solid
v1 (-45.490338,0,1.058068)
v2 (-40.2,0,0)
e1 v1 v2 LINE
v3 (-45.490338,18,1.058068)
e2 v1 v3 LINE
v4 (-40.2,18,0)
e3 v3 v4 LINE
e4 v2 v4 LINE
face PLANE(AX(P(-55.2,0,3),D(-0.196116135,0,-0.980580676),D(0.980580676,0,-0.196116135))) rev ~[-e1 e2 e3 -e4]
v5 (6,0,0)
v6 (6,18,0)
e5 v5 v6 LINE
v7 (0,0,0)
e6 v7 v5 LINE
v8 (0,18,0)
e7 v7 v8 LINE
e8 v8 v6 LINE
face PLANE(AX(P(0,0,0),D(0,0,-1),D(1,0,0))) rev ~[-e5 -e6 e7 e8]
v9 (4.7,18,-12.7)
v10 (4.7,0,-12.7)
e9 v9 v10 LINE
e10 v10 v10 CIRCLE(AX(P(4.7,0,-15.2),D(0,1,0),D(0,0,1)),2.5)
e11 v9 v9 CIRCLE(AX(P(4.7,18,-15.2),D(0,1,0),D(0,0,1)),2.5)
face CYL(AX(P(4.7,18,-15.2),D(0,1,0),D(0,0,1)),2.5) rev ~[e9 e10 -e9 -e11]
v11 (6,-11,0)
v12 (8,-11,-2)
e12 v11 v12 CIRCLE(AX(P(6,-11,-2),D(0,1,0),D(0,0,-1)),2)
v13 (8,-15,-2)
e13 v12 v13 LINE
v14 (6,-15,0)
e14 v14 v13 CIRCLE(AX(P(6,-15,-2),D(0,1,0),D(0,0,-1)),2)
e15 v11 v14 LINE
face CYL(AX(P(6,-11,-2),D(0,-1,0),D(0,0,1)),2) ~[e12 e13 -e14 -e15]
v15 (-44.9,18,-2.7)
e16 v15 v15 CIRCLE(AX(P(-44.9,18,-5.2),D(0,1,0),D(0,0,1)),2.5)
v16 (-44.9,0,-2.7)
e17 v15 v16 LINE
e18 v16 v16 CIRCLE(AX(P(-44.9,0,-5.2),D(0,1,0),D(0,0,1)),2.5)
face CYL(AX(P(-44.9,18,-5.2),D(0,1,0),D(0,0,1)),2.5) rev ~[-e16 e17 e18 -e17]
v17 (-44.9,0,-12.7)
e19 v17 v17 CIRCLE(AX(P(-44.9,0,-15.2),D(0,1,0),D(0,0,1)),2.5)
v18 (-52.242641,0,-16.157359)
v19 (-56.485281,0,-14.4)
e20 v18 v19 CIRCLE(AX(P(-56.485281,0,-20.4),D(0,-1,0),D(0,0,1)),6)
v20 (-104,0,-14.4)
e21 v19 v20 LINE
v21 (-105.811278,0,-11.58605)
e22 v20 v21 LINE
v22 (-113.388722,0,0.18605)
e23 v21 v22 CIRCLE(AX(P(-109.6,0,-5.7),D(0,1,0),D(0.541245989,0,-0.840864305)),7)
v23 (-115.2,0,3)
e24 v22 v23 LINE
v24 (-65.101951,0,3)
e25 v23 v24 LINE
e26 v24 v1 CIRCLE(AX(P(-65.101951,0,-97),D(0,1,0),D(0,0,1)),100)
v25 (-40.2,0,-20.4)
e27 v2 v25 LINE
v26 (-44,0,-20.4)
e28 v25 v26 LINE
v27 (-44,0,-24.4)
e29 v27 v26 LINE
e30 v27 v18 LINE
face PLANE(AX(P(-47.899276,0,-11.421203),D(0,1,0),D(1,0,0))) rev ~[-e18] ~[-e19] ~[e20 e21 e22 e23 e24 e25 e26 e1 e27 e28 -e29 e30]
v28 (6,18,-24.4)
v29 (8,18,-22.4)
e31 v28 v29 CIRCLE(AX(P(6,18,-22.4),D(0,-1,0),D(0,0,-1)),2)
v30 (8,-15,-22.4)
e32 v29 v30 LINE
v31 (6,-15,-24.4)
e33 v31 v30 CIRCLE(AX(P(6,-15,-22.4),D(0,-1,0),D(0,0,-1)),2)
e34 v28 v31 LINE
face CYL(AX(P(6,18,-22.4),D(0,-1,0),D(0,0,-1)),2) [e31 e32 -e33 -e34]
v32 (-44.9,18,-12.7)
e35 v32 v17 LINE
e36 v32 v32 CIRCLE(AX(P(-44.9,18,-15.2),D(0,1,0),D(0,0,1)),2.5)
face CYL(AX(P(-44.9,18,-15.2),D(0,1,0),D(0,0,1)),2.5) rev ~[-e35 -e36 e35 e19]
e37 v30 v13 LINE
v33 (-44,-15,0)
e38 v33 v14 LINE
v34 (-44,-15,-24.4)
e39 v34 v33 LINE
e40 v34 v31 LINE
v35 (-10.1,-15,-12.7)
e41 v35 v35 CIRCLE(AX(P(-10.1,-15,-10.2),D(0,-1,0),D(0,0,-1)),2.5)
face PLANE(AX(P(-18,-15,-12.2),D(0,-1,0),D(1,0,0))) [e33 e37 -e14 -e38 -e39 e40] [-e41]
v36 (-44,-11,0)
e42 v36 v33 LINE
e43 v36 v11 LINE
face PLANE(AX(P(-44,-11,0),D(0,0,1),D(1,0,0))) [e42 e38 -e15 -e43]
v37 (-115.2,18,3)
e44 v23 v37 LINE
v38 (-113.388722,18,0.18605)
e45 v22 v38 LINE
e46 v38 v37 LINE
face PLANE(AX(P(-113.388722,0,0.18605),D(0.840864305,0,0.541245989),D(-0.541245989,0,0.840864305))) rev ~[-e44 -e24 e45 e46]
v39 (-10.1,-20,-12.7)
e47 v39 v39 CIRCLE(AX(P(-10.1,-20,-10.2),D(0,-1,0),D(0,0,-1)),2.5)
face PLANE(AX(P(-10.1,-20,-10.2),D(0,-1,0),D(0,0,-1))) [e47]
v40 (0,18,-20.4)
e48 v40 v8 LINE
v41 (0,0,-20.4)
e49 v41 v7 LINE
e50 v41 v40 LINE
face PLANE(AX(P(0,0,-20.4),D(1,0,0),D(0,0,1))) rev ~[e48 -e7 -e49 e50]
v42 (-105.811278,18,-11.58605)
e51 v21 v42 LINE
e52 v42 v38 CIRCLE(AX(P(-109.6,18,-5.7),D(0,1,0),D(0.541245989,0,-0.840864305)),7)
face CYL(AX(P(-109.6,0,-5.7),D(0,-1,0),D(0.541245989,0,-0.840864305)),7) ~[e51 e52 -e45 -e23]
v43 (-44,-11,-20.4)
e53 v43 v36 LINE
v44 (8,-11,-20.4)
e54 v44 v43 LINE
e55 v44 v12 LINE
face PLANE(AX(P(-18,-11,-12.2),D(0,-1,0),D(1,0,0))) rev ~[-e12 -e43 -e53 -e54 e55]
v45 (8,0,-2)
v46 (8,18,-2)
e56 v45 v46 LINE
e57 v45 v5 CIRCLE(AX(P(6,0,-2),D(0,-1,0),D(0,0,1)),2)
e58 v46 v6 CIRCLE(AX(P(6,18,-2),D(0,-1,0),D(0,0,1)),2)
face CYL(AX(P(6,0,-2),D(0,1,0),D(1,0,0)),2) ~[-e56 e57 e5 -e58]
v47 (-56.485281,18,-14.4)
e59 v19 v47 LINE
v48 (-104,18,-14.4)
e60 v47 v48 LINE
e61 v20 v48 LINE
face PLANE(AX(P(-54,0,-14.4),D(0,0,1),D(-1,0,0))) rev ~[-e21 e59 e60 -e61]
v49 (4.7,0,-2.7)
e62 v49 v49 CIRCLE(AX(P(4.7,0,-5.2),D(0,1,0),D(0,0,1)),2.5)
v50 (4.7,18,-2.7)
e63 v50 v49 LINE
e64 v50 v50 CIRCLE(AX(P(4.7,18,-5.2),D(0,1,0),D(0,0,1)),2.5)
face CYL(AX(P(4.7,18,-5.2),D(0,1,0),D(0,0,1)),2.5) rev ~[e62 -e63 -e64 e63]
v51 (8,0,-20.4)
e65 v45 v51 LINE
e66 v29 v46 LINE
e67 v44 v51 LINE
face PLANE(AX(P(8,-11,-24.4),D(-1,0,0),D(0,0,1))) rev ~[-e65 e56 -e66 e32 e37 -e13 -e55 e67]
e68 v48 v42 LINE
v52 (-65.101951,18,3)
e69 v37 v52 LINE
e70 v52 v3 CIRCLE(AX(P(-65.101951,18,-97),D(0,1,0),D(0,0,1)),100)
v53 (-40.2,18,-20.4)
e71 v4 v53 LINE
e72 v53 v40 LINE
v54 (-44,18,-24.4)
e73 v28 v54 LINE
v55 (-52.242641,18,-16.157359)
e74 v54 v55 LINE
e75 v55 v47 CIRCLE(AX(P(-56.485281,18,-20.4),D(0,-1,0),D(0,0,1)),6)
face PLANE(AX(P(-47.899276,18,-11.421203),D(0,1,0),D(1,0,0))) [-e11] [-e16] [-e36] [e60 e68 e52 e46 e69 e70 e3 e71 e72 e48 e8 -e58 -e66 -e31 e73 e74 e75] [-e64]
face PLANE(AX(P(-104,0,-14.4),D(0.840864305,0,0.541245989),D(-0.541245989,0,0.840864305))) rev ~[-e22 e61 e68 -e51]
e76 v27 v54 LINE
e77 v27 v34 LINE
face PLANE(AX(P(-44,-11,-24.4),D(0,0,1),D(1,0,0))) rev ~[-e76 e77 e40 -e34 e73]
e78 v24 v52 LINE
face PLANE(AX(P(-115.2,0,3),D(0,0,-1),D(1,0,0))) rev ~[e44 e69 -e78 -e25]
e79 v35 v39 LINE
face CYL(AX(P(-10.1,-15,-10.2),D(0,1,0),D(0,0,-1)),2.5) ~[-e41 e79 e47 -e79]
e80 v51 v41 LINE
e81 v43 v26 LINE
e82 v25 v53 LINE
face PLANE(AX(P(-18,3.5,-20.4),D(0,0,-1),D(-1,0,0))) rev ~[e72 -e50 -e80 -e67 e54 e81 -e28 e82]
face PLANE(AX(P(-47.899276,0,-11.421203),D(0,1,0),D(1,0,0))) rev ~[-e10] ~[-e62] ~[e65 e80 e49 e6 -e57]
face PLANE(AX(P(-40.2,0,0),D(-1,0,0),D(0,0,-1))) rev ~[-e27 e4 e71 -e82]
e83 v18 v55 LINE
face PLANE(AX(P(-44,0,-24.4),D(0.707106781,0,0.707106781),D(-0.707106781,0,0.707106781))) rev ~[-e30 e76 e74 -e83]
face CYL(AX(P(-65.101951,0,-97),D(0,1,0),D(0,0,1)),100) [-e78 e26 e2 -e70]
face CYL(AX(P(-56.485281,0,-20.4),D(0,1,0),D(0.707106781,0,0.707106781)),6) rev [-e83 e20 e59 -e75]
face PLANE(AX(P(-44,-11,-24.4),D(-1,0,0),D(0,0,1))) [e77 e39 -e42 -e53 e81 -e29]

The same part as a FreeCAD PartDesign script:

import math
import FreeCAD as App
import Part
import Sketcher
from FreeCAD import Vector
Q = App.Units.Quantity


def edges_at(feature, points):
    """Names of the edges that pass closest to the given points."""
    edges = feature.Shape.Edges
    near = lambda p: min(range(len(edges)), key=lambda i: edges[i].distToShape(Part.Vertex(*p))[0])
    return sorted({f"Edge{near(p) + 1}" for p in points})

doc = App.newDocument("Part")
params = doc.addObject("Spreadsheet::Sheet", "Params")
for row, (alias, value) in enumerate([
    ("sketch1_radius", "7 mm"),
    ("sketch1_width", "8 mm"),
    ("sketch1_width2", "52 mm"),
    ("sketch1_width3", "50 mm"),
    ("sketch1_width4", "60 mm"),
    ("pad1_length", "18 mm"),
    ("sketch2_width", "52 mm"),
    ("sketch2_height", "29 mm"),
    ("pad2_length", "4 mm"),
    ("sketch3_width", "52 mm"),
    ("sketch3_height", "24.4 mm"),
    ("pad3_length", "4 mm"),
    ("sketch4_diameter", "5 mm"),
    ("pad4_length", "5 mm"),
    ("sketch5_diameter", "5 mm"),
    ("pocket1_length", "18 mm"),
    ("fillet_radius", "6 mm"),
    ("fillet2_radius", "2 mm"),
    ("fillet3_radius", "100 mm"),
], start=1):
    params.set(f"A{row}", alias)
    params.set(f"B{row}", "=" + value)
    params.setAlias(f"B{row}", alias)

body = doc.addObject("PartDesign::Body", "Body")

# Sketch on XZ plane
sketch1 = body.newObject("Sketcher::SketchObject", "Sketch")
sketch1.AttachmentSupport = (doc.getObject("XZ_Plane"), [""])
sketch1.MapMode = "FlatFace"
sketch1.addGeometry([
    Part.LineSegment(Vector(-40.2, 0, 0), Vector(-40.2, -20.4, 0)),  # 0
    Part.LineSegment(Vector(-40.2, -20.4, 0), Vector(0, -20.4, 0)),  # 1
    Part.LineSegment(Vector(0, -20.4, 0), Vector(0, 0, 0)),  # 2
    Part.LineSegment(Vector(0, 0, 0), Vector(8, 0, 0)),  # 3
    Part.LineSegment(Vector(8, 0, 0), Vector(8, -24.4, 0)),  # 4
    Part.LineSegment(Vector(8, -24.4, 0), Vector(-44, -24.4, 0)),  # 5
    Part.LineSegment(Vector(-44, -24.4, 0), Vector(-54, -14.4, 0)),  # 6
    Part.LineSegment(Vector(-54, -14.4, 0), Vector(-104, -14.4, 0)),  # 7
    Part.LineSegment(Vector(-104, -14.4, 0), Vector(-105.8, -11.6, 0)),  # 8
    Part.ArcOfCircle(Part.Circle(Vector(-109.6, -5.7, 0), Vector(0, 0, 1), 7), math.radians(123), math.radians(303)),  # 9
    Part.LineSegment(Vector(-113.4, 0.2, 0), Vector(-115.2, 3, 0)),  # 10
    Part.LineSegment(Vector(-115.2, 3, 0), Vector(-55.2, 3, 0)),  # 11
    Part.LineSegment(Vector(-55.2, 3, 0), Vector(-40.2, 0, 0)),  # 12
], False)
sketch1.addConstraint([
    Sketcher.Constraint("Coincident", 0, 2, 1, 1),
    Sketcher.Constraint("Coincident", 1, 2, 2, 1),
    Sketcher.Constraint("Coincident", 2, 2, 3, 1),
    Sketcher.Constraint("Coincident", 3, 2, 4, 1),
    Sketcher.Constraint("Coincident", 4, 2, 5, 1),
    Sketcher.Constraint("Coincident", 5, 2, 6, 1),
    Sketcher.Constraint("Coincident", 6, 2, 7, 1),
    Sketcher.Constraint("Coincident", 7, 2, 8, 1),
    Sketcher.Constraint("Coincident", 8, 2, 9, 2),
    Sketcher.Constraint("Coincident", 9, 1, 10, 1),
    Sketcher.Constraint("Coincident", 10, 2, 11, 1),
    Sketcher.Constraint("Coincident", 11, 2, 12, 1),
    Sketcher.Constraint("Coincident", 12, 2, 0, 1),
    Sketcher.Constraint("Vertical", 0),
    Sketcher.Constraint("Horizontal", 1),
    Sketcher.Constraint("Vertical", 2),
    Sketcher.Constraint("Horizontal", 3),
    Sketcher.Constraint("Vertical", 4),
    Sketcher.Constraint("Horizontal", 5),
    Sketcher.Constraint("Horizontal", 7),
    Sketcher.Constraint("Horizontal", 11),
    Sketcher.Constraint("Coincident", 2, 2, -1, 1),
    Sketcher.Constraint("PointOnObject", 12, 2, -1),
    Sketcher.Constraint("Parallel", 8, 10),
    Sketcher.Constraint("Equal", 8, 10),
    Sketcher.Constraint("Radius", 9, Q("7 mm")),
    Sketcher.Constraint("DistanceX", 3, 1, 3, 2, Q("8 mm")),
    Sketcher.Constraint("DistanceX", 5, 2, 5, 1, Q("52 mm")),
    Sketcher.Constraint("DistanceX", 7, 2, 7, 1, Q("50 mm")),
    Sketcher.Constraint("DistanceX", 11, 1, 11, 2, Q("60 mm")),
    Sketcher.Constraint("Angle", 6, Q("135 deg")),
    Sketcher.Constraint("DistanceX", 1, 1, 1, 2, Q("40.2 mm")),
    Sketcher.Constraint("DistanceY", 0, 2, 0, 1, Q("20.4 mm")),
    Sketcher.Constraint("DistanceY", 4, 2, 4, 1, Q("24.4 mm")),
    Sketcher.Constraint("DistanceX", 6, 2, -1, 1, Q("54 mm")),
    Sketcher.Constraint("DistanceY", -1, 1, 10, 2, Q("3 mm")),
    Sketcher.Constraint("DistanceX", 11, 2, 0, 2, Q("15 mm")),
    Sketcher.Constraint("DistanceX", 9, 3, -1, 1, Q("109.6 mm")),
    Sketcher.Constraint("DistanceY", 8, 2, 9, 1, Q("11.7721 mm")),
])
sketch1.setExpression("Constraints[25]", "Params.sketch1_radius")
sketch1.setExpression("Constraints[26]", "Params.sketch1_width")
sketch1.setExpression("Constraints[27]", "Params.sketch1_width2")
sketch1.setExpression("Constraints[28]", "Params.sketch1_width3")
sketch1.setExpression("Constraints[29]", "Params.sketch1_width4")
pad1 = body.newObject("PartDesign::Pad", "Pad")
pad1.Profile = sketch1
pad1.setExpression("Length", "Params.pad1_length")
pad1.Reversed = True

# Sketch on XY plane
sketch2 = body.newObject("Sketcher::SketchObject", "Sketch001")
sketch2.AttachmentSupport = (doc.getObject("XY_Plane"), [""])
sketch2.MapMode = "FlatFace"
sketch2.AttachmentOffset = App.Placement(Vector(0, 0, -24.4), App.Rotation())
sketch2.addGeometry([
    Part.LineSegment(Vector(8, 18, 0), Vector(8, -11, 0)),
    Part.LineSegment(Vector(8, -11, 0), Vector(-44, -11, 0)),
    Part.LineSegment(Vector(-44, -11, 0), Vector(-44, 18, 0)),
    Part.LineSegment(Vector(-44, 18, 0), Vector(8, 18, 0)),
], False)
sketch2.addConstraint([
    Sketcher.Constraint("Coincident", 0, 2, 1, 1),
    Sketcher.Constraint("Coincident", 1, 2, 2, 1),
    Sketcher.Constraint("Coincident", 2, 2, 3, 1),
    Sketcher.Constraint("Coincident", 3, 2, 0, 1),
    Sketcher.Constraint("Vertical", 0),
    Sketcher.Constraint("Horizontal", 1),
    Sketcher.Constraint("Vertical", 2),
    Sketcher.Constraint("Horizontal", 3),
    Sketcher.Constraint("DistanceX", 1, 2, 1, 1, Q("52 mm")),
    Sketcher.Constraint("DistanceY", 0, 2, 0, 1, Q("29 mm")),
    Sketcher.Constraint("DistanceX", -1, 1, 0, 2, Q("8 mm")),
    Sketcher.Constraint("DistanceY", 0, 2, -1, 1, Q("11 mm")),
])
sketch2.setExpression("Constraints[8]", "Params.sketch2_width")
sketch2.setExpression("Constraints[9]", "Params.sketch2_height")
pad2 = body.newObject("PartDesign::Pad", "Pad001")
pad2.Profile = sketch2
pad2.setExpression("Length", "Params.pad2_length")

# Sketch on XZ plane
sketch3 = body.newObject("Sketcher::SketchObject", "Sketch002")
sketch3.AttachmentSupport = (doc.getObject("XZ_Plane"), [""])
sketch3.MapMode = "FlatFace"
sketch3.AttachmentOffset = App.Placement(Vector(0, 0, 11), App.Rotation())
sketch3.addGeometry([
    Part.LineSegment(Vector(-44, 0, 0), Vector(-44, -24, 0)),
    Part.LineSegment(Vector(-44, -24, 0), Vector(8, -24, 0)),
    Part.LineSegment(Vector(8, -24, 0), Vector(8, 0, 0)),
    Part.LineSegment(Vector(8, 0, 0), Vector(-44, 0, 0)),
], False)
sketch3.addConstraint([
    Sketcher.Constraint("Coincident", 0, 2, 1, 1),
    Sketcher.Constraint("Coincident", 1, 2, 2, 1),
    Sketcher.Constraint("Coincident", 2, 2, 3, 1),
    Sketcher.Constraint("Coincident", 3, 2, 0, 1),
    Sketcher.Constraint("Vertical", 0),
    Sketcher.Constraint("Horizontal", 1),
    Sketcher.Constraint("Vertical", 2),
    Sketcher.Constraint("Horizontal", 3),
    Sketcher.Constraint("PointOnObject", 2, 2, -1),
    Sketcher.Constraint("DistanceX", 1, 1, 1, 2, Q("52 mm")),
    Sketcher.Constraint("DistanceY", 0, 2, 0, 1, Q("24.4 mm")),
    Sketcher.Constraint("DistanceX", 0, 2, -1, 1, Q("44 mm")),
])
sketch3.setExpression("Constraints[9]", "Params.sketch3_width")
sketch3.setExpression("Constraints[10]", "Params.sketch3_height")
pad3 = body.newObject("PartDesign::Pad", "Pad002")
pad3.Profile = sketch3
pad3.setExpression("Length", "Params.pad3_length")

# Sketch on XZ plane
sketch4 = body.newObject("Sketcher::SketchObject", "Sketch003")
sketch4.AttachmentSupport = (doc.getObject("XZ_Plane"), [""])
sketch4.MapMode = "FlatFace"
sketch4.AttachmentOffset = App.Placement(Vector(0, 0, 15), App.Rotation())
sketch4.addGeometry(Part.Circle(Vector(-10.1, -10.2, 0), Vector(0, 0, 1), 2.5), False)
sketch4.addConstraint([
    Sketcher.Constraint("Diameter", 0, Q("5 mm")),
    Sketcher.Constraint("DistanceX", 0, 3, -1, 1, Q("10.1 mm")),
    Sketcher.Constraint("DistanceY", 0, 3, -1, 1, Q("10.2 mm")),
])
sketch4.setExpression("Constraints[0]", "Params.sketch4_diameter")
pad4 = body.newObject("PartDesign::Pad", "Pad003")
pad4.Profile = sketch4
pad4.setExpression("Length", "Params.pad4_length")

# Sketch on XZ plane
sketch5 = body.newObject("Sketcher::SketchObject", "Sketch004")
sketch5.AttachmentSupport = (doc.getObject("XZ_Plane"), [""])
sketch5.MapMode = "FlatFace"
sketch5.AttachmentOffset = App.Placement(Vector(0, 0, -18), App.Rotation())
sketch5.addGeometry([
    Part.Circle(Vector(4.7, -15.2, 0), Vector(0, 0, 1), 2.5),
    Part.Circle(Vector(4.7, -5.2, 0), Vector(0, 0, 1), 2.5),
    Part.Circle(Vector(-44.9, -5.2, 0), Vector(0, 0, 1), 2.5),
    Part.Circle(Vector(-44.9, -15.2, 0), Vector(0, 0, 1), 2.5),
], False)
sketch5.addConstraint([
    Sketcher.Constraint("Equal", 0, 1),
    Sketcher.Constraint("Equal", 1, 2),
    Sketcher.Constraint("Equal", 2, 3),
    Sketcher.Constraint("Horizontal", 1, 3, 2, 3),
    Sketcher.Constraint("Horizontal", 0, 3, 3, 3),
    Sketcher.Constraint("Vertical", 0, 3, 1, 3),
    Sketcher.Constraint("Vertical", 2, 3, 3, 3),
    Sketcher.Constraint("Diameter", 0, Q("5 mm")),
    Sketcher.Constraint("DistanceY", 0, 3, 1, 3, Q("10 mm")),
    Sketcher.Constraint("DistanceX", -1, 1, 0, 3, Q("4.7 mm")),
    Sketcher.Constraint("DistanceY", 0, 3, -1, 1, Q("15.2 mm")),
    Sketcher.Constraint("DistanceX", 2, 3, -1, 1, Q("44.9 mm")),
])
sketch5.setExpression("Constraints[7]", "Params.sketch5_diameter")
pocket1 = body.newObject("PartDesign::Pocket", "Pocket")
pocket1.Profile = sketch5
pocket1.setExpression("Length", "Params.pocket1_length")
pocket1.Reversed = True
doc.recompute()

fillet = body.newObject("PartDesign::Fillet", "Fillet")
fillet.Base = (pocket1, edges_at(pocket1, [(-54, 9, -14.4)]))
fillet.setExpression("Radius", "Params.fillet_radius")
doc.recompute()

fillet2 = body.newObject("PartDesign::Fillet", "Fillet001")
fillet2.Base = (fillet, edges_at(fillet, [(8, 1.5, -24.4), (8, 9, 0), (8, -13, 0)]))
fillet2.setExpression("Radius", "Params.fillet2_radius")
doc.recompute()

fillet3 = body.newObject("PartDesign::Fillet", "Fillet002")
fillet3.Base = (fillet2, edges_at(fillet2, [(-55.2, 9, 3)]))
fillet3.setExpression("Radius", "Params.fillet3_radius")

doc.recompute()
